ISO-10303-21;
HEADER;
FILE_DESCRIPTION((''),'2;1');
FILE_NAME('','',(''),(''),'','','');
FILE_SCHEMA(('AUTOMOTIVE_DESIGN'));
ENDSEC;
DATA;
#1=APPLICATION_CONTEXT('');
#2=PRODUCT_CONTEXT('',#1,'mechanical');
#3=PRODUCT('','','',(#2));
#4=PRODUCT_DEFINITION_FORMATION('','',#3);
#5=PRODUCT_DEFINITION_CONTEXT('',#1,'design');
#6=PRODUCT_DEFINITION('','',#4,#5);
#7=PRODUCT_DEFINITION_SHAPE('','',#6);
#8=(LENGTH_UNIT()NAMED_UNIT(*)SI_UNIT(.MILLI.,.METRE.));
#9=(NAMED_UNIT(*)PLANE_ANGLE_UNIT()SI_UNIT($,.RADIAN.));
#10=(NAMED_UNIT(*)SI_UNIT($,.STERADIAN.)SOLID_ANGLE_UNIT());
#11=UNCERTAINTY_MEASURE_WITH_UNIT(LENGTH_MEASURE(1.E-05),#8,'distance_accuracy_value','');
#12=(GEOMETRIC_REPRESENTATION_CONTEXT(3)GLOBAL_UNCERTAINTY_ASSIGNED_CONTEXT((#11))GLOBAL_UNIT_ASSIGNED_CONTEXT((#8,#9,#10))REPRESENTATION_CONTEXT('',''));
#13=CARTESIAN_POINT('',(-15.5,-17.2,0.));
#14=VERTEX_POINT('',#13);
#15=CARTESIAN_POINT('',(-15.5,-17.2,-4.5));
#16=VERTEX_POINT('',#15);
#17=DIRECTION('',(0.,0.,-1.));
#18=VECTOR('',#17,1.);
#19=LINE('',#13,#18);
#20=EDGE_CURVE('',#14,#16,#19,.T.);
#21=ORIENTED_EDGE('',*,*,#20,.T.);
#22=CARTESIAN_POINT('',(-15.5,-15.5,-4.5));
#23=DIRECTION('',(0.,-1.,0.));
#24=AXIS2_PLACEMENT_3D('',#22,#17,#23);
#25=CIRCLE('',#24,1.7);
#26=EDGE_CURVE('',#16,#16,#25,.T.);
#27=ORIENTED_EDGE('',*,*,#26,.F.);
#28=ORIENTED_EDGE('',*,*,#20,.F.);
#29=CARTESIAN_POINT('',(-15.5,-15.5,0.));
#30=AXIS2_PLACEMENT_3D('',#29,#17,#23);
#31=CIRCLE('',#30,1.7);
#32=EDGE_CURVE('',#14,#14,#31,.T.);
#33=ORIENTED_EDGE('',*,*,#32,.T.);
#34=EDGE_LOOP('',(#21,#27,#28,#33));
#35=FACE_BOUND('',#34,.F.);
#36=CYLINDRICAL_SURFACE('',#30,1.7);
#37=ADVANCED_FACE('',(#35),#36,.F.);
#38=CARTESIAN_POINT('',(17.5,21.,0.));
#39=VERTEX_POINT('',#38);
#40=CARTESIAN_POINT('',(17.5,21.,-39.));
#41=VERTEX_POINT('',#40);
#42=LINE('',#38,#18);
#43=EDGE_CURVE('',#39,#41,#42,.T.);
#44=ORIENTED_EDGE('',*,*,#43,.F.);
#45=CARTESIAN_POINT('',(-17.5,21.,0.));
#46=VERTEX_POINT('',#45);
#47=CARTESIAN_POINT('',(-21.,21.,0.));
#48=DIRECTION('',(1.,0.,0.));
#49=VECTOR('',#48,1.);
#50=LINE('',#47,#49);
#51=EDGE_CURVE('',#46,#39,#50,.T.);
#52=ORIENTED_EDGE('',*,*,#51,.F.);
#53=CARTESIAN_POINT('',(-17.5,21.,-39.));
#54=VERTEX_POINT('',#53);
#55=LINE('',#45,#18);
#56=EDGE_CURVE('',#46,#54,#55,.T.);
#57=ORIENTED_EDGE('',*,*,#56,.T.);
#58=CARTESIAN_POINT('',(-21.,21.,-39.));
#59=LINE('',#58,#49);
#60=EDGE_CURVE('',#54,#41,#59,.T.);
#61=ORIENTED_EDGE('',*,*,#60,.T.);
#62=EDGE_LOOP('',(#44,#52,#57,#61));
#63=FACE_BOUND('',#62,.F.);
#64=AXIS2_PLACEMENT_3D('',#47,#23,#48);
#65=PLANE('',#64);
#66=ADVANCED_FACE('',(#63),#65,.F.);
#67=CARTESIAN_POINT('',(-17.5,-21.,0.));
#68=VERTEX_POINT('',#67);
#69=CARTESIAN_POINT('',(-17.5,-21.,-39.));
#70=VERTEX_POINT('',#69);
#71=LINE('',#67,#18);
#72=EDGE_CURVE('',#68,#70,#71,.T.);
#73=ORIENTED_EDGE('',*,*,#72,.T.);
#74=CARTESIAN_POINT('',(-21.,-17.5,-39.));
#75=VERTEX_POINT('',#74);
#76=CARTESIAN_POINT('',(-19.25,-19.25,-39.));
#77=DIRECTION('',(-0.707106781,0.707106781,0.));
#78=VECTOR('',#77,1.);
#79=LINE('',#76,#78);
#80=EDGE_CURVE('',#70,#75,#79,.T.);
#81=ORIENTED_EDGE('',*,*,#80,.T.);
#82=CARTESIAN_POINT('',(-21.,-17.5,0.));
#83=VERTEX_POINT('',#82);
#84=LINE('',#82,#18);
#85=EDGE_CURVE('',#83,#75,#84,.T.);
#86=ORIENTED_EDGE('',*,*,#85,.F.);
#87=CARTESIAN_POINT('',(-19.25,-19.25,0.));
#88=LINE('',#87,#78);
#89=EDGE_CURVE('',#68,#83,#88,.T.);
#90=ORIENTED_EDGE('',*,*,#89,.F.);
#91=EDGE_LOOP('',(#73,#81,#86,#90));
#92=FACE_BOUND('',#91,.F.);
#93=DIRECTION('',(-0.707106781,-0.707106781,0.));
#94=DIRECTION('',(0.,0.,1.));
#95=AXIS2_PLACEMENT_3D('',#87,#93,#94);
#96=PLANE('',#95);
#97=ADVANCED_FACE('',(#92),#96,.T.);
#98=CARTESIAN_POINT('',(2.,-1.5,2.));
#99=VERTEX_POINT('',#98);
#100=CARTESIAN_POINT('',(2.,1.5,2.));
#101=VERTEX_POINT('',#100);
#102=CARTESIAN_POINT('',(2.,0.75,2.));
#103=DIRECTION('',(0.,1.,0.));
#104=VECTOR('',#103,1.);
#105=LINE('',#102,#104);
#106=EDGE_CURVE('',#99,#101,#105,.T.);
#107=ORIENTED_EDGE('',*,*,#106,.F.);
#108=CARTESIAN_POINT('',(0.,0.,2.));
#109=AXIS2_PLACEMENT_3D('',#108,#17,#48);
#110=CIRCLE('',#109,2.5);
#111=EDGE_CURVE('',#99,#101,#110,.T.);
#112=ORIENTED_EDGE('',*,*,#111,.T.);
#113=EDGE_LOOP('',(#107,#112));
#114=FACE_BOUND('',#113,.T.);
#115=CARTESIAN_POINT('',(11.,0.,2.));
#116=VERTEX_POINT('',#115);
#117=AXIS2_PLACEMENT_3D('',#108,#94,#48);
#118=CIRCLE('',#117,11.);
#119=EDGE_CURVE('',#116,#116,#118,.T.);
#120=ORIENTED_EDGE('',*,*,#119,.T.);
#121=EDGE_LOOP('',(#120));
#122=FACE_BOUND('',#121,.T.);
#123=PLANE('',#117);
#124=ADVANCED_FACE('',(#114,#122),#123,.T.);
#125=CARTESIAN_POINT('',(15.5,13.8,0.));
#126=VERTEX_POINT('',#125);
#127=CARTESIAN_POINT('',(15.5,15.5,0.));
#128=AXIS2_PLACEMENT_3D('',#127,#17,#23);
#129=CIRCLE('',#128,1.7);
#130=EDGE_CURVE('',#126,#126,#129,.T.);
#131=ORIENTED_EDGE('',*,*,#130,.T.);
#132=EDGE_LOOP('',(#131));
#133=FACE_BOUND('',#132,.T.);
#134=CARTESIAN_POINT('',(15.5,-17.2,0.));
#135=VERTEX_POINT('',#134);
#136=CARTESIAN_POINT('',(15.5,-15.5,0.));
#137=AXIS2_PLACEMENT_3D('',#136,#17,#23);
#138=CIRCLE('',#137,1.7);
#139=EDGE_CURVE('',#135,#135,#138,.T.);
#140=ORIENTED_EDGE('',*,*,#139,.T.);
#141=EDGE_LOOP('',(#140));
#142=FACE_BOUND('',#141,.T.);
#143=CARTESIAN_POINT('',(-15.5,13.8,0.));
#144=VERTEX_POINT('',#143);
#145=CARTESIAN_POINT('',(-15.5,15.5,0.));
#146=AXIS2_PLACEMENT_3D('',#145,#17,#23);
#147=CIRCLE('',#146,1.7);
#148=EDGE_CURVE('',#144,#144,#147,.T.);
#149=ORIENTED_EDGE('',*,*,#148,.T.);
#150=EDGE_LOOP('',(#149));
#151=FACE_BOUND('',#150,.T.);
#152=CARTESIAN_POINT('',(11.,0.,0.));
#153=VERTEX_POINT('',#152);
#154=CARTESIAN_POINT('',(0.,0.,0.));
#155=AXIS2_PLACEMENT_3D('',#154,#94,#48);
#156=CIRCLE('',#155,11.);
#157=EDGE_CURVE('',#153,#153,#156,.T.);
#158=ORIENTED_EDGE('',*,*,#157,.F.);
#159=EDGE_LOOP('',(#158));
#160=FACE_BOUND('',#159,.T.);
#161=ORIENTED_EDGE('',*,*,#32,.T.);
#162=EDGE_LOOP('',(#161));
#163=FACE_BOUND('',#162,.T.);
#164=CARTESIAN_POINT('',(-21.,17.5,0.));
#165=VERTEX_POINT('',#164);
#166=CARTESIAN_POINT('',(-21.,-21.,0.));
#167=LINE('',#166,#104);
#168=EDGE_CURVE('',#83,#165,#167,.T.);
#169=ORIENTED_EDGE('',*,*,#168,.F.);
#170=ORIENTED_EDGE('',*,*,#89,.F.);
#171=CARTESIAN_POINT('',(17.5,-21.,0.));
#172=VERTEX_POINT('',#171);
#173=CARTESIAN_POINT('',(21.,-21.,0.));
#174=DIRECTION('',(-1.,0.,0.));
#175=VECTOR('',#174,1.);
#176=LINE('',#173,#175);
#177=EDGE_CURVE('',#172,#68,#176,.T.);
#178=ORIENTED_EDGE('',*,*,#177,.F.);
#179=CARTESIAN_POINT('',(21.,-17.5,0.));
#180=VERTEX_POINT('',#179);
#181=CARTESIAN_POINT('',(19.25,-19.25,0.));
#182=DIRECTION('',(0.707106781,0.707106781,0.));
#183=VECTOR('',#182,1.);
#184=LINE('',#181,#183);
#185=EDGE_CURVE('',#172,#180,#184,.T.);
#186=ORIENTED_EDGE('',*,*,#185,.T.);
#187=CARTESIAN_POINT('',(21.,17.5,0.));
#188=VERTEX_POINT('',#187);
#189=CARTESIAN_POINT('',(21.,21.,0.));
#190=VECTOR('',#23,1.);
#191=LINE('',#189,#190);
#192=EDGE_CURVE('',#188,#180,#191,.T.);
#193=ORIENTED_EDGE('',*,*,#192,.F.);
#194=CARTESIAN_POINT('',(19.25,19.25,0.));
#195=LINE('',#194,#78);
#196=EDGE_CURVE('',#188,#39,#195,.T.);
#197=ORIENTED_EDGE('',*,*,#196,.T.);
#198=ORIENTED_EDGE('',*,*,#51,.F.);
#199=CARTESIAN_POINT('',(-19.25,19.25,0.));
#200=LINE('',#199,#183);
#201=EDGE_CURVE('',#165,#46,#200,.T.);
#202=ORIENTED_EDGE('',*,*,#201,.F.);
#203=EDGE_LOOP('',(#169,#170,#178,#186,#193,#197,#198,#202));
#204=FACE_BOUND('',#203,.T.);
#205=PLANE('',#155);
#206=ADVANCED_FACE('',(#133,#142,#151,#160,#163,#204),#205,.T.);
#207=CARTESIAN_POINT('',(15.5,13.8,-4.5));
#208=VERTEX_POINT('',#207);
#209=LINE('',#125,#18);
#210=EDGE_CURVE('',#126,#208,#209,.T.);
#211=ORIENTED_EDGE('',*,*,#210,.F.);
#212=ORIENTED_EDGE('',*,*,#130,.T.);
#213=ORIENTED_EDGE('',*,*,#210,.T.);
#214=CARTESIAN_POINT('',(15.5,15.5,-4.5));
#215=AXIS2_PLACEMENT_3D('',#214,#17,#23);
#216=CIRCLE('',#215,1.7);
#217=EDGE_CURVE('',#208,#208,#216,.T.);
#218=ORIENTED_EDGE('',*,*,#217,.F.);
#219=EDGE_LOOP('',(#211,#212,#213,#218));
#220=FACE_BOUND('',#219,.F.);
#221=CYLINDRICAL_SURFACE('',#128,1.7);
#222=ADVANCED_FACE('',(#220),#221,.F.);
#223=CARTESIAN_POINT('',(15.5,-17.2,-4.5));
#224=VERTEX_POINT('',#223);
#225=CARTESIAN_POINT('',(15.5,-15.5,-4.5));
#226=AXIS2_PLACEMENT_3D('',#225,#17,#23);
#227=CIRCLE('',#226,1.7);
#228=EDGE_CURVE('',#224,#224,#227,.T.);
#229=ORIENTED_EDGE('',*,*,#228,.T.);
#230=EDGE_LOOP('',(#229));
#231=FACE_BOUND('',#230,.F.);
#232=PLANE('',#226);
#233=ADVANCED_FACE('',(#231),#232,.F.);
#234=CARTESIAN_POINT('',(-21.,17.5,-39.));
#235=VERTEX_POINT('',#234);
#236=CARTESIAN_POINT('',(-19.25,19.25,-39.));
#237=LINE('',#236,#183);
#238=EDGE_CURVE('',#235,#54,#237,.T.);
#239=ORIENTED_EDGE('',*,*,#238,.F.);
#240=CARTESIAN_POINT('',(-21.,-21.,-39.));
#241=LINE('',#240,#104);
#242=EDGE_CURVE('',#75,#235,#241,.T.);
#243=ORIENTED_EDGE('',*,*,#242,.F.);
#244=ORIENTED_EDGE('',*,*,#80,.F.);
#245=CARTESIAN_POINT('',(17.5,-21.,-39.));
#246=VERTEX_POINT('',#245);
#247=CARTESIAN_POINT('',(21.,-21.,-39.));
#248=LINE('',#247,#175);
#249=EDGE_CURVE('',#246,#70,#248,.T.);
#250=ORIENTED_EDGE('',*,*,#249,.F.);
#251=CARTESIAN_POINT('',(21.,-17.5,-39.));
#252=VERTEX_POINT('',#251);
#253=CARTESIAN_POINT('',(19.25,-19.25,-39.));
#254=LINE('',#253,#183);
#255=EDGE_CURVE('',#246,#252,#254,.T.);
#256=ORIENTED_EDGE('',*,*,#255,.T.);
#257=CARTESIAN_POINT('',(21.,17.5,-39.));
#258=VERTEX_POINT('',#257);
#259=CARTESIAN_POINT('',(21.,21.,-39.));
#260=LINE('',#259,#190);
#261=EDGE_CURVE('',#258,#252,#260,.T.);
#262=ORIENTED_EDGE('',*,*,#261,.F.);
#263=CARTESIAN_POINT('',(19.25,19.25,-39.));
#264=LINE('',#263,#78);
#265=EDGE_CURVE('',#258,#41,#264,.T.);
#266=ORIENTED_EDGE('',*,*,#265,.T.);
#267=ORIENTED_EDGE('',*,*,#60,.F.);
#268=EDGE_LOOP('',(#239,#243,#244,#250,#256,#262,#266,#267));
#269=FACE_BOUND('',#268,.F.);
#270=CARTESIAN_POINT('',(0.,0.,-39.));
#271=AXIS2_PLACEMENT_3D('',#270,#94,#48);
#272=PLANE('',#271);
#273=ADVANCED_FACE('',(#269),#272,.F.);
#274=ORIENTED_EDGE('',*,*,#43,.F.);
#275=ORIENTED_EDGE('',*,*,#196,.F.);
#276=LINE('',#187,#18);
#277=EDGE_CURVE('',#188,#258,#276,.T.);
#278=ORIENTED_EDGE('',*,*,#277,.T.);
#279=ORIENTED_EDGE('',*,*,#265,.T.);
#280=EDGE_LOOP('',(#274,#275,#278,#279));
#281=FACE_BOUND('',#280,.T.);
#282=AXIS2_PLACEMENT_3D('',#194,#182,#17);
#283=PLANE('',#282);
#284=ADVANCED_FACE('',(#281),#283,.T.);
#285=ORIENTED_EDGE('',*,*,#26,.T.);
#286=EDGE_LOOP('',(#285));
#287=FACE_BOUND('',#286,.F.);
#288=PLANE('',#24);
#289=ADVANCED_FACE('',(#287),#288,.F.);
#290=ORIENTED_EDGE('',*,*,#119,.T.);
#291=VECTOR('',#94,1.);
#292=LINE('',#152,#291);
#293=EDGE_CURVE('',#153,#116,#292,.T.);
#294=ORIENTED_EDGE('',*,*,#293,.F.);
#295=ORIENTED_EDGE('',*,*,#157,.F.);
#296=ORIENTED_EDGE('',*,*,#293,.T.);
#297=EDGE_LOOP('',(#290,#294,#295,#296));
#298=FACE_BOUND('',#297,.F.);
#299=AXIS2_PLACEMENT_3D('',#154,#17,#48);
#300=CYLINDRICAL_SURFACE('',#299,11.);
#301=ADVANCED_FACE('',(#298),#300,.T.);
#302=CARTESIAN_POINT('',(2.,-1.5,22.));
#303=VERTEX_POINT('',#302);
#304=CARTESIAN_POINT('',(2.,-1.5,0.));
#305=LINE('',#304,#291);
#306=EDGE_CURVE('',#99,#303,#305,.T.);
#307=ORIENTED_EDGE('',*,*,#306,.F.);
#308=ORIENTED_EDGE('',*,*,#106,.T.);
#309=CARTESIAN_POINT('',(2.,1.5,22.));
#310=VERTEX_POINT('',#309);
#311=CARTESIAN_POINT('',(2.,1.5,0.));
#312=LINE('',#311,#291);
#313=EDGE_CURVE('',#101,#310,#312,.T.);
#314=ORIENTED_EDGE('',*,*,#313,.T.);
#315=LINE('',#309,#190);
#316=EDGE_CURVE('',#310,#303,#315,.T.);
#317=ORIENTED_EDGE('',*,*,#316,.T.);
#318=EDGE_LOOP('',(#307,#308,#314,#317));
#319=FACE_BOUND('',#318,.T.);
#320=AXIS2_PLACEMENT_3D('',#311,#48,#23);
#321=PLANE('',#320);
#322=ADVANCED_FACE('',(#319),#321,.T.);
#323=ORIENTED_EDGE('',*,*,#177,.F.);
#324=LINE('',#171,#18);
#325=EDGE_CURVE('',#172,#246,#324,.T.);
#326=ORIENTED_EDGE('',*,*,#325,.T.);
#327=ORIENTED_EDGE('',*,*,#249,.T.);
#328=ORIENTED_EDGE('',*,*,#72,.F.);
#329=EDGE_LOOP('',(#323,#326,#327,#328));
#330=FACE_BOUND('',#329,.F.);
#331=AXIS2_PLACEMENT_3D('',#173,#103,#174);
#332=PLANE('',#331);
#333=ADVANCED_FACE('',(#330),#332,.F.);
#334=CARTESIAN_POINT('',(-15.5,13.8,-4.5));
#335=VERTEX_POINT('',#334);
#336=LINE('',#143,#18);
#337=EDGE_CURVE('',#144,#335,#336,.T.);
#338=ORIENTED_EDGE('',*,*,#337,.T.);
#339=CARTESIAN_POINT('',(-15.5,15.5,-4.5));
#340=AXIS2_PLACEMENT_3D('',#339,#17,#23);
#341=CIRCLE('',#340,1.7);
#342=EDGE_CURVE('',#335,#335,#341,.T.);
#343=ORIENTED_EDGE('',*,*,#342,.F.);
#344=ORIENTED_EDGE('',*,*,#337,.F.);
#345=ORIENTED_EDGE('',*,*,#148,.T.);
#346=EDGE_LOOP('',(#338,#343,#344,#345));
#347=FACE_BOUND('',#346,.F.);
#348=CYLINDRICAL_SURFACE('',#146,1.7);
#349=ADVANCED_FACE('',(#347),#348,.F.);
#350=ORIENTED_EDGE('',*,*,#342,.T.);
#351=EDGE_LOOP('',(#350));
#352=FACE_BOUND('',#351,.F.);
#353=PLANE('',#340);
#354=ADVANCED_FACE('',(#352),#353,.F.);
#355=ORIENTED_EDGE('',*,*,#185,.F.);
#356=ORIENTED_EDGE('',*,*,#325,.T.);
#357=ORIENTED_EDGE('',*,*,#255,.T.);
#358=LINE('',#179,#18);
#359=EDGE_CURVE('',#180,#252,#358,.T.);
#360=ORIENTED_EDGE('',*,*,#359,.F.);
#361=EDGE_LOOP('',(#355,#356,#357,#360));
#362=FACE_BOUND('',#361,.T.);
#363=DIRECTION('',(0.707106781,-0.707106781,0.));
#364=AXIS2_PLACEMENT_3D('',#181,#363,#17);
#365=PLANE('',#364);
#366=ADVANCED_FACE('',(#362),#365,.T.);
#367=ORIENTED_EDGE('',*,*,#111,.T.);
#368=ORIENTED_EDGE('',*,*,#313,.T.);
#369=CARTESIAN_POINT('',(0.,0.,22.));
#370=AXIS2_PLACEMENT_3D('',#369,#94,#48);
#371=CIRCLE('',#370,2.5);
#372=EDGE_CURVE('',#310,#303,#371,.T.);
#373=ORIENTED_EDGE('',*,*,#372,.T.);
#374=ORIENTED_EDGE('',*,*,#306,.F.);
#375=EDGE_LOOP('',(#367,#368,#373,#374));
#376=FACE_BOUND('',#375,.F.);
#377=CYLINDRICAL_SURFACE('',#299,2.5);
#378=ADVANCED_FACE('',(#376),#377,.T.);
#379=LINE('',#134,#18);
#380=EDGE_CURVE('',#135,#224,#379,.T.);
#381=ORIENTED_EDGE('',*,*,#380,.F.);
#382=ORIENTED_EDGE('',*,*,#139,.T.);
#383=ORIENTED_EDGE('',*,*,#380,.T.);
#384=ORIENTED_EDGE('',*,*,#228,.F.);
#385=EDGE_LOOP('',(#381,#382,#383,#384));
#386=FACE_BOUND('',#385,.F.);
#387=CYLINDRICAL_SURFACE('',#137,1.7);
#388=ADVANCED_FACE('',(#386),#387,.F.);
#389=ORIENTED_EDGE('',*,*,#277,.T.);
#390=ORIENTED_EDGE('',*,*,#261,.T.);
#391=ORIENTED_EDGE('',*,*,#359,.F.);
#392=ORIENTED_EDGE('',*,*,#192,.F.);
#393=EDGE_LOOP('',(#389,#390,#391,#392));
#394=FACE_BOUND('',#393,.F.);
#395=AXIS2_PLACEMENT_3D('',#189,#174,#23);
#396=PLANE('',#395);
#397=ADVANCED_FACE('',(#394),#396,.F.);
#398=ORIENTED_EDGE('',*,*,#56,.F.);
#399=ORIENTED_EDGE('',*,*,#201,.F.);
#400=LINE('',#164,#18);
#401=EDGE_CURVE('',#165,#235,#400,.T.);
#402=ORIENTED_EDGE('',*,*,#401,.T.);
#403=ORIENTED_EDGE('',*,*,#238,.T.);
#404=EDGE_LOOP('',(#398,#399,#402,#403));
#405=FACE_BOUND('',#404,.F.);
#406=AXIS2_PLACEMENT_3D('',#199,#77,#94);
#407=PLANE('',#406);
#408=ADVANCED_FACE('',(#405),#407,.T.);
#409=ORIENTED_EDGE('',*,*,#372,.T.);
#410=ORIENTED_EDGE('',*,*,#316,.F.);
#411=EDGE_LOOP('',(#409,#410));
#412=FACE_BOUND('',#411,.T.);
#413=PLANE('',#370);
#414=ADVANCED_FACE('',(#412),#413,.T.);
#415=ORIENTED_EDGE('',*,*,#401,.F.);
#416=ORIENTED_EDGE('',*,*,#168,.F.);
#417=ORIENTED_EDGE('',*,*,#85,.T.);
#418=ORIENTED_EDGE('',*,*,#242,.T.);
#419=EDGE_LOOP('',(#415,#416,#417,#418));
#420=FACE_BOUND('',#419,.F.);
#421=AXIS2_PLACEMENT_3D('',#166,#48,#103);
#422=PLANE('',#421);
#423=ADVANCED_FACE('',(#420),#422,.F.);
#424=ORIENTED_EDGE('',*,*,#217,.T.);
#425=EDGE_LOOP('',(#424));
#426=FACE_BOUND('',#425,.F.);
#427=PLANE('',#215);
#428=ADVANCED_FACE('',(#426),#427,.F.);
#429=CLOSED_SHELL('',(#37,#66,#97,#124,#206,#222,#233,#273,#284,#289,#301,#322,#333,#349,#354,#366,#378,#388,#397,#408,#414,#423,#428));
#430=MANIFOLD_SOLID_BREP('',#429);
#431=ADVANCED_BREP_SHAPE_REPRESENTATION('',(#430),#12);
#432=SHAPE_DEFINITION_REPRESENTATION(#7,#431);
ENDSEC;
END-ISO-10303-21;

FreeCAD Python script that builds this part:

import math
import FreeCAD as App
import Part
import Sketcher

V = App.Vector
Q = App.Units.Quantity


def edges_at(feature, points):
    """Names of the edges that pass closest to the given points."""
    edges = feature.Shape.Edges
    near = lambda p: min(range(len(edges)), key=lambda i: edges[i].distToShape(Part.Vertex(*p))[0])
    return sorted({f"Edge{near(p) + 1}" for p in points})

doc = App.newDocument("Part")
body = doc.addObject("PartDesign::Body", "Body")

sketch1 = body.newObject("Sketcher::SketchObject", "Sketch")
sketch1.AttachmentSupport = (doc.getObject("XY_Plane"), [""])
sketch1.MapMode = "FlatFace"
sketch1.addGeometry(Part.LineSegment(V(-21, -21, 0), V(21, -21, 0)), False)
sketch1.addGeometry(Part.LineSegment(V(21, -21, 0), V(21, 21, 0)), False)
sketch1.addGeometry(Part.LineSegment(V(21, 21, 0), V(-21, 21, 0)), False)
sketch1.addGeometry(Part.LineSegment(V(-21, 21, 0), V(-21, -21, 0)), False)
sketch1.addConstraint(Sketcher.Constraint("Coincident", 0, 2, 1, 1))
sketch1.addConstraint(Sketcher.Constraint("Coincident", 1, 2, 2, 1))
sketch1.addConstraint(Sketcher.Constraint("Coincident", 2, 2, 3, 1))
sketch1.addConstraint(Sketcher.Constraint("Coincident", 3, 2, 0, 1))
sketch1.addConstraint(Sketcher.Constraint("Horizontal", 0))
sketch1.addConstraint(Sketcher.Constraint("Vertical", 1))
sketch1.addConstraint(Sketcher.Constraint("Horizontal", 2))
sketch1.addConstraint(Sketcher.Constraint("Vertical", 3))
sketch1.addConstraint(Sketcher.Constraint("Symmetric", 0, 2, 2, 2, -1, 1))
sketch1.addConstraint(Sketcher.Constraint("Equal", 2, 1))
sketch1.addConstraint(Sketcher.Constraint("DistanceX", 0, 1, 0, 2, Q("42 mm")))
pad1 = body.newObject("PartDesign::Pad", "Pad")
pad1.Profile = sketch1
pad1.Length = 39
pad1.Reversed = True

sketch2 = body.newObject("Sketcher::SketchObject", "Sketch001")
sketch2.AttachmentSupport = (doc.getObject("XY_Plane"), [""])
sketch2.MapMode = "FlatFace"
sketch2.addGeometry(Part.Circle(V(0, 0, 0), V(0, 0, 1), 11), False)
sketch2.addConstraint(Sketcher.Constraint("Coincident", 0, 3, -1, 1))
sketch2.addConstraint(Sketcher.Constraint("Diameter", 0, Q("22 mm")))
pad2 = body.newObject("PartDesign::Pad", "Pad001")
pad2.Profile = sketch2
pad2.Length = 2

sketch3 = body.newObject("Sketcher::SketchObject", "Sketch002")
sketch3.AttachmentSupport = (doc.getObject("XY_Plane"), [""])
sketch3.MapMode = "FlatFace"
sketch3.addGeometry(Part.LineSegment(V(2, -1.5, 0), V(2, 1.5, 0)), False)
sketch3.addGeometry(Part.ArcOfCircle(Part.Circle(V(0, 0, 0), V(0, 0, 1), 2.5), math.radians(37), math.radians(323)), False)
sketch3.addConstraint(Sketcher.Constraint("Coincident", 0, 1, 1, 2))
sketch3.addConstraint(Sketcher.Constraint("Coincident", 1, 1, 0, 2))
sketch3.addConstraint(Sketcher.Constraint("Vertical", 0))
sketch3.addConstraint(Sketcher.Constraint("Coincident", 1, 3, -1, 1))
sketch3.addConstraint(Sketcher.Constraint("Radius", 1, Q("2.5 mm")))
sketch3.addConstraint(Sketcher.Constraint("DistanceX", -1, 1, 0, 1, Q("2 mm")))
pad3 = body.newObject("PartDesign::Pad", "Pad002")
pad3.Profile = sketch3
pad3.Length = 22

sketch4 = body.newObject("Sketcher::SketchObject", "Sketch003")
sketch4.AttachmentSupport = (doc.getObject("XY_Plane"), [""])
sketch4.MapMode = "FlatFace"
sketch4.addGeometry(Part.Circle(V(-15.5, -15.5, 0), V(0, 0, 1), 1.7), False)
sketch4.addGeometry(Part.Circle(V(-15.5, 15.5, 0), V(0, 0, 1), 1.7), False)
sketch4.addGeometry(Part.Circle(V(15.5, 15.5, 0), V(0, 0, 1), 1.7), False)
sketch4.addGeometry(Part.Circle(V(15.5, -15.5, 0), V(0, 0, 1), 1.7), False)
sketch4.addConstraint(Sketcher.Constraint("Equal", 0, 1))
sketch4.addConstraint(Sketcher.Constraint("Equal", 1, 2))
sketch4.addConstraint(Sketcher.Constraint("Equal", 2, 3))
sketch4.addConstraint(Sketcher.Constraint("Symmetric", 0, 3, 2, 3, -1, 1))
sketch4.addConstraint(Sketcher.Constraint("Symmetric", 1, 3, 3, 3, -1, 1))
sketch4.addConstraint(Sketcher.Constraint("Symmetric", 1, 3, 2, 3, -2))
sketch4.addConstraint(Sketcher.Constraint("Diameter", 0, Q("3.4 mm")))
sketch4.addConstraint(Sketcher.Constraint("DistanceY", 0, 3, 1, 3, Q("31 mm")))
sketch4.addConstraint(Sketcher.Constraint("DistanceX", 1, 3, 2, 3, Q("31 mm")))
doc.recompute()
hole = body.newObject("PartDesign::Hole", "Hole")
hole.Profile = sketch4
hole.ThreadType = "None"
hole.Diameter = 3.4
hole.DepthType = "Dimension"
hole.Depth = 4.5
hole.DrillPoint = "Flat"
doc.recompute()

chamfer = body.newObject("PartDesign::Chamfer", "Chamfer")
chamfer.Base = (hole, edges_at(hole, [
    (-21, -21, -19.5),
    (-21, 21, -19.5),
    (21, -21, -19.5),
    (21, 21, -19.5),
]))
chamfer.Size = 3.5

doc.recompute()
